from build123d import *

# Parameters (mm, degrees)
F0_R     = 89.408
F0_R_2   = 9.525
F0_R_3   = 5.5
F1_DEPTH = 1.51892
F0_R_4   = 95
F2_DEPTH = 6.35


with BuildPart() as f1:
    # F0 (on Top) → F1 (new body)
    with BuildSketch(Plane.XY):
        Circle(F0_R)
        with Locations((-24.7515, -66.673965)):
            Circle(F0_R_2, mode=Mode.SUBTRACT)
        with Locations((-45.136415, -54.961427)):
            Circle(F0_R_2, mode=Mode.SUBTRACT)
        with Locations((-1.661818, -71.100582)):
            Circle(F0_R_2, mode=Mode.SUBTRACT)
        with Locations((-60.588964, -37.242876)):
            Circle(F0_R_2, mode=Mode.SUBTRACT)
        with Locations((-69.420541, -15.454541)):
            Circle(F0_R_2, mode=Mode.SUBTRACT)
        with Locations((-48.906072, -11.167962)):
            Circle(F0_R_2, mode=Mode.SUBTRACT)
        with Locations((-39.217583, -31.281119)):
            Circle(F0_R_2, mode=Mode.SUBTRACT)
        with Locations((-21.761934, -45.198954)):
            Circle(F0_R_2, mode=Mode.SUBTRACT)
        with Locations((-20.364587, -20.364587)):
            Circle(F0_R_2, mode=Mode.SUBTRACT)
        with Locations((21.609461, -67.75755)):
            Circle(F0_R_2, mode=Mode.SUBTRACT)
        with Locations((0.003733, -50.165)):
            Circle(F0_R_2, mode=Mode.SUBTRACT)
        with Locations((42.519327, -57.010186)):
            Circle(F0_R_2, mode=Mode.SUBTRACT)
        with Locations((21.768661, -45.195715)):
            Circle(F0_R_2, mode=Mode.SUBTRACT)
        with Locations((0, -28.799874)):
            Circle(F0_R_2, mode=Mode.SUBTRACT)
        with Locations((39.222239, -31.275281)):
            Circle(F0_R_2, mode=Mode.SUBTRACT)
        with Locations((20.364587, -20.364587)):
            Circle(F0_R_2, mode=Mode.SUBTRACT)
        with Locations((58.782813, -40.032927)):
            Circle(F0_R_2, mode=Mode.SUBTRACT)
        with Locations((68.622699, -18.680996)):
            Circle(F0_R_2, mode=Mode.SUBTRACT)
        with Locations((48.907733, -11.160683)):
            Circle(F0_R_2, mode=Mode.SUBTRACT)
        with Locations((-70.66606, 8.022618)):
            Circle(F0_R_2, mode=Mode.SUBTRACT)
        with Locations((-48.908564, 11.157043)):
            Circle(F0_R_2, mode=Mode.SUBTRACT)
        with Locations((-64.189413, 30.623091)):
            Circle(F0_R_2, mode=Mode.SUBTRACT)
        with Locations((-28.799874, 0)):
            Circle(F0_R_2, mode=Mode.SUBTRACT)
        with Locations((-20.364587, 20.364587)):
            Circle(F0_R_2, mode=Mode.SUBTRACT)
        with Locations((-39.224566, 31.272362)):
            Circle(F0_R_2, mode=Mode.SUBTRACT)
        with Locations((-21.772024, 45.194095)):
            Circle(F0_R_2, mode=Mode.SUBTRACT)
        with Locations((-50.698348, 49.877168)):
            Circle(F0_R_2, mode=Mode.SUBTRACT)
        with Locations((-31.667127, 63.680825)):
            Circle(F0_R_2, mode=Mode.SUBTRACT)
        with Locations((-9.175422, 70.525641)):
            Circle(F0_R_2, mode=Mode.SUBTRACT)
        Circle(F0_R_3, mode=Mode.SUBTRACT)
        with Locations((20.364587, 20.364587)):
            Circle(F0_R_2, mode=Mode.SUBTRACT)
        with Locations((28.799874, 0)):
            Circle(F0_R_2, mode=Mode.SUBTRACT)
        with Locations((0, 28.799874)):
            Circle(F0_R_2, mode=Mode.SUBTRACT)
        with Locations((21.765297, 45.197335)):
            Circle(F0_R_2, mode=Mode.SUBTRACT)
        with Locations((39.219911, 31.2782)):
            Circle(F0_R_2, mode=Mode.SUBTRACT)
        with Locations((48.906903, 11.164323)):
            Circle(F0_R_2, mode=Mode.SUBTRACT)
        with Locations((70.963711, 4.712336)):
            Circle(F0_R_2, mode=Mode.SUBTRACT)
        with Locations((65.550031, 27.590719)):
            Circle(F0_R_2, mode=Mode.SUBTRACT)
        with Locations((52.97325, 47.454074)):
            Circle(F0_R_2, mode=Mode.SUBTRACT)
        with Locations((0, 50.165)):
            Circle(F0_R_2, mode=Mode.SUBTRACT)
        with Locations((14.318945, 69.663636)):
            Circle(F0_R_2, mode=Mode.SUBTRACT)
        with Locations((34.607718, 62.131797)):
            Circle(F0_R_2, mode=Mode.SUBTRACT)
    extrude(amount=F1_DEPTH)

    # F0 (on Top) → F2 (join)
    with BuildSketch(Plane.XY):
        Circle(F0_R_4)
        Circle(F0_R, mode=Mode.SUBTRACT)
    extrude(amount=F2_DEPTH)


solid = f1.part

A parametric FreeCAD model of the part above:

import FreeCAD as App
import Part
import Sketcher
from FreeCAD import Vector
Q = App.Units.Quantity

doc = App.newDocument("Part")
body = doc.addObject("PartDesign::Body", "Body")

# Sketch on XY plane
sketch1 = body.newObject("Sketcher::SketchObject", "Sketch")
sketch1.AttachmentSupport = (doc.getObject("XY_Plane"), [""])
sketch1.MapMode = "FlatFace"
sketch1.addGeometry(Part.Circle(Vector(0, 0, 0), Vector(0, 0, 1), 89), False)
sketch1.addGeometry(Part.Circle(Vector(-45, -55, 0), Vector(0, 0, 1), 10), False)
sketch1.addGeometry(Part.Circle(Vector(-25, -67, 0), Vector(0, 0, 1), 10), False)
sketch1.addGeometry(Part.Circle(Vector(-2, -71, 0), Vector(0, 0, 1), 10), False)
sketch1.addGeometry(Part.Circle(Vector(-22, -45, 0), Vector(0, 0, 1), 10), False)
sketch1.addGeometry(Part.Circle(Vector(0, -50, 0), Vector(0, 0, 1), 10), False)
sketch1.addGeometry(Part.Circle(Vector(-61, -37, 0), Vector(0, 0, 1), 10), False)
sketch1.addGeometry(Part.Circle(Vector(-69, -15, 0), Vector(0, 0, 1), 10), False)
sketch1.addGeometry(Part.Circle(Vector(-49, -11, 0), Vector(0, 0, 1), 10), False)
sketch1.addGeometry(Part.Circle(Vector(-39, -31, 0), Vector(0, 0, 1), 10), False)
sketch1.addGeometry(Part.Circle(Vector(0, -29, 0), Vector(0, 0, 1), 10), False)
sketch1.addGeometry(Part.Circle(Vector(-20, -20, 0), Vector(0, 0, 1), 10), False)
sketch1.addGeometry(Part.Circle(Vector(22, -68, 0), Vector(0, 0, 1), 10), False)
sketch1.addGeometry(Part.Circle(Vector(22, -45, 0), Vector(0, 0, 1), 10), False)
sketch1.addGeometry(Part.Circle(Vector(43, -57, 0), Vector(0, 0, 1), 10), False)
sketch1.addGeometry(Part.Circle(Vector(39, -31, 0), Vector(0, 0, 1), 10), False)
sketch1.addGeometry(Part.Circle(Vector(20, -20, 0), Vector(0, 0, 1), 10), False)
sketch1.addGeometry(Part.Circle(Vector(59, -40, 0), Vector(0, 0, 1), 10), False)
sketch1.addGeometry(Part.Circle(Vector(49, -11, 0), Vector(0, 0, 1), 10), False)
sketch1.addGeometry(Part.Circle(Vector(69, -19, 0), Vector(0, 0, 1), 10), False)
sketch1.addGeometry(Part.Circle(Vector(-71, 8, 0), Vector(0, 0, 1), 10), False)
sketch1.addGeometry(Part.Circle(Vector(-49, 11, 0), Vector(0, 0, 1), 10), False)
sketch1.addGeometry(Part.Circle(Vector(-64, 31, 0), Vector(0, 0, 1), 10), False)
sketch1.addGeometry(Part.Circle(Vector(-29, 0, 0), Vector(0, 0, 1), 10), False)
sketch1.addGeometry(Part.Circle(Vector(0, 0, 0), Vector(0, 0, 1), 6), False)
sketch1.addGeometry(Part.Circle(Vector(-20, 20, 0), Vector(0, 0, 1), 10), False)
sketch1.addGeometry(Part.Circle(Vector(-39, 31, 0), Vector(0, 0, 1), 10), False)
sketch1.addGeometry(Part.Circle(Vector(0, 29, 0), Vector(0, 0, 1), 10), False)
sketch1.addGeometry(Part.Circle(Vector(-51, 50, 0), Vector(0, 0, 1), 10), False)
sketch1.addGeometry(Part.Circle(Vector(-22, 45, 0), Vector(0, 0, 1), 10), False)
sketch1.addGeometry(Part.Circle(Vector(0, 50, 0), Vector(0, 0, 1), 10), False)
sketch1.addGeometry(Part.Circle(Vector(-32, 64, 0), Vector(0, 0, 1), 10), False)
sketch1.addGeometry(Part.Circle(Vector(-9, 71, 0), Vector(0, 0, 1), 10), False)
sketch1.addGeometry(Part.Circle(Vector(29, 0, 0), Vector(0, 0, 1), 10), False)
sketch1.addGeometry(Part.Circle(Vector(20, 20, 0), Vector(0, 0, 1), 10), False)
sketch1.addGeometry(Part.Circle(Vector(39, 31, 0), Vector(0, 0, 1), 10), False)
sketch1.addGeometry(Part.Circle(Vector(49, 11, 0), Vector(0, 0, 1), 10), False)
sketch1.addGeometry(Part.Circle(Vector(71, 5, 0), Vector(0, 0, 1), 10), False)
sketch1.addGeometry(Part.Circle(Vector(66, 28, 0), Vector(0, 0, 1), 10), False)
sketch1.addGeometry(Part.Circle(Vector(22, 45, 0), Vector(0, 0, 1), 10), False)
sketch1.addGeometry(Part.Circle(Vector(14, 70, 0), Vector(0, 0, 1), 10), False)
sketch1.addGeometry(Part.Circle(Vector(35, 62, 0), Vector(0, 0, 1), 10), False)
sketch1.addGeometry(Part.Circle(Vector(53, 47, 0), Vector(0, 0, 1), 10), False)
sketch1.addConstraint(Sketcher.Constraint("Coincident", 0, 3, -1, 1))
sketch1.addConstraint(Sketcher.Constraint("Coincident", 24, 3, -1, 1))
sketch1.addConstraint(Sketcher.Constraint("Equal", 1, 2))
sketch1.addConstraint(Sketcher.Constraint("Equal", 2, 3))
sketch1.addConstraint(Sketcher.Constraint("Equal", 3, 4))
sketch1.addConstraint(Sketcher.Constraint("Equal", 4, 5))
sketch1.addConstraint(Sketcher.Constraint("Equal", 5, 6))
sketch1.addConstraint(Sketcher.Constraint("Equal", 6, 7))
sketch1.addConstraint(Sketcher.Constraint("Equal", 7, 8))
sketch1.addConstraint(Sketcher.Constraint("Equal", 8, 9))
sketch1.addConstraint(Sketcher.Constraint("Equal", 9, 10))
sketch1.addConstraint(Sketcher.Constraint("Equal", 10, 11))
sketch1.addConstraint(Sketcher.Constraint("Equal", 11, 12))
sketch1.addConstraint(Sketcher.Constraint("Equal", 12, 13))
sketch1.addConstraint(Sketcher.Constraint("Equal", 13, 14))
sketch1.addConstraint(Sketcher.Constraint("Equal", 14, 15))
sketch1.addConstraint(Sketcher.Constraint("Equal", 15, 16))
sketch1.addConstraint(Sketcher.Constraint("Equal", 16, 17))
sketch1.addConstraint(Sketcher.Constraint("Equal", 17, 18))
sketch1.addConstraint(Sketcher.Constraint("Equal", 18, 19))
sketch1.addConstraint(Sketcher.Constraint("Equal", 19, 20))
sketch1.addConstraint(Sketcher.Constraint("Equal", 20, 21))
sketch1.addConstraint(Sketcher.Constraint("Equal", 21, 22))
sketch1.addConstraint(Sketcher.Constraint("Equal", 22, 23))
sketch1.addConstraint(Sketcher.Constraint("Equal", 23, 25))
sketch1.addConstraint(Sketcher.Constraint("Equal", 25, 26))
sketch1.addConstraint(Sketcher.Constraint("Equal", 26, 27))
sketch1.addConstraint(Sketcher.Constraint("Equal", 27, 28))
sketch1.addConstraint(Sketcher.Constraint("Equal", 28, 29))
sketch1.addConstraint(Sketcher.Constraint("Equal", 29, 30))
sketch1.addConstraint(Sketcher.Constraint("Equal", 30, 31))
sketch1.addConstraint(Sketcher.Constraint("Equal", 31, 32))
sketch1.addConstraint(Sketcher.Constraint("Equal", 32, 33))
sketch1.addConstraint(Sketcher.Constraint("Equal", 33, 34))
sketch1.addConstraint(Sketcher.Constraint("Equal", 34, 35))
sketch1.addConstraint(Sketcher.Constraint("Equal", 35, 36))
sketch1.addConstraint(Sketcher.Constraint("Equal", 36, 37))
sketch1.addConstraint(Sketcher.Constraint("Equal", 37, 38))
sketch1.addConstraint(Sketcher.Constraint("Equal", 38, 39))
sketch1.addConstraint(Sketcher.Constraint("Equal", 39, 40))
sketch1.addConstraint(Sketcher.Constraint("Equal", 40, 41))
sketch1.addConstraint(Sketcher.Constraint("Equal", 41, 42))
sketch1.addConstraint(Sketcher.Constraint("Symmetric", 16, 3, 25, 3, -1, 1))
sketch1.addConstraint(Sketcher.Constraint("Symmetric", 10, 3, 27, 3, -1, 1))
sketch1.addConstraint(Sketcher.Constraint("Symmetric", 23, 3, 33, 3, -1, 1))
sketch1.addConstraint(Sketcher.Constraint("Symmetric", 11, 3, 34, 3, -1, 1))
sketch1.addConstraint(Sketcher.Constraint("Symmetric", 11, 3, 16, 3, -2))
sketch1.addConstraint(Sketcher.Constraint("PointOnObject", 10, 3, -2))
sketch1.addConstraint(Sketcher.Constraint("PointOnObject", 23, 3, -1))
sketch1.addConstraint(Sketcher.Constraint("PointOnObject", 30, 3, -2))
sketch1.addConstraint(Sketcher.Constraint("Diameter", 0, Q("7.04 in")))
sketch1.addConstraint(Sketcher.Constraint("Diameter", 1, Q("0.75 in")))
sketch1.addConstraint(Sketcher.Constraint("Diameter", 24, Q("11 mm")))
sketch1.addConstraint(Sketcher.Constraint("DistanceY", 5, 3, -1, 1, Q("1.975 in")))
sketch1.addConstraint(Sketcher.Constraint("DistanceY", -1, 1, 30, 3, Q("1.975 in")))
sketch1.addConstraint(Sketcher.Constraint("DistanceY", -1, 1, 32, 3, Q("2.7766 in")))
sketch1.addConstraint(Sketcher.Constraint("DistanceY", 3, 3, 1, 3, Q("0.6353998 in")))
sketch1.addConstraint(Sketcher.Constraint("DistanceX", 7, 3, 6, 3, Q("0.3476999 in")))
sketch1.addConstraint(Sketcher.Constraint("DistanceY", 7, 3, 21, 3, Q("1.0477002 in")))
sketch1.addConstraint(Sketcher.Constraint("DistanceX", 31, 3, 32, 3, Q("0.8855002 in")))
sketch1.addConstraint(Sketcher.Constraint("DistanceY", 37, 3, 35, 3, Q("1.0459002 in")))
sketch1.addConstraint(Sketcher.Constraint("DistanceX", 2, 3, -1, 1, Q("24.7515 mm")))
sketch1.addConstraint(Sketcher.Constraint("DistanceX", -1, 1, 19, 3, Q("68.622699 mm")))
sketch1.addConstraint(Sketcher.Constraint("DistanceY", -1, 1, 35, 3, Q("31.2782 mm")))
sketch1.addConstraint(Sketcher.Constraint("DistanceX", 12, 3, 13, 3, Q("0.1592 mm")))
sketch1.addConstraint(Sketcher.Constraint("DistanceY", 15, 3, 18, 3, Q("20.114598 mm")))
sketch1.addConstraint(Sketcher.Constraint("DistanceX", 8, 3, 23, 3, Q("20.106198 mm")))
sketch1.addConstraint(Sketcher.Constraint("DistanceX", 29, 3, 32, 3, Q("12.596602 mm")))
sketch1.addConstraint(Sketcher.Constraint("DistanceX", 35, 3, 37, 3, Q("31.7438 mm")))
sketch1.addConstraint(Sketcher.Constraint("DistanceX", 18, 3, 38, 3, Q("16.642298 mm")))
sketch1.addConstraint(Sketcher.Constraint("DistanceY", 39, 3, 40, 3, Q("24.466301 mm")))
sketch1.addConstraint(Sketcher.Constraint("DistanceX", 7, 3, -1, 1, Q("69.420541 mm")))
sketch1.addConstraint(Sketcher.Constraint("DistanceY", 7, 3, -1, 1, Q("15.454541 mm")))
sketch1.addConstraint(Sketcher.Constraint("DistanceY", 8, 3, -1, 1, Q("11.167962 mm")))
sketch1.addConstraint(Sketcher.Constraint("DistanceY", 9, 3, -1, 1, Q("31.281119 mm")))
sketch1.addConstraint(Sketcher.Constraint("DistanceX", -1, 1, 12, 3, Q("21.609461 mm")))
sketch1.addConstraint(Sketcher.Constraint("DistanceY", 12, 3, -1, 1, Q("67.75755 mm")))
sketch1.addConstraint(Sketcher.Constraint("DistanceX", -1, 1, 15, 3, Q("39.222239 mm")))
sketch1.addConstraint(Sketcher.Constraint("DistanceY", 15, 3, -1, 1, Q("31.275281 mm")))
sketch1.addConstraint(Sketcher.Constraint("DistanceX", 20, 3, -1, 1, Q("70.66606 mm")))
sketch1.addConstraint(Sketcher.Constraint("DistanceY", -1, 1, 22, 3, Q("30.623091 mm")))
sketch1.addConstraint(Sketcher.Constraint("DistanceX", 28, 3, -1, 1, Q("50.698348 mm")))
sketch1.addConstraint(Sketcher.Constraint("DistanceX", 32, 3, -1, 1, Q("9.175422 mm")))
sketch1.addConstraint(Sketcher.Constraint("DistanceX", -1, 1, 35, 3, Q("39.219911 mm")))
sketch1.addConstraint(Sketcher.Constraint("DistanceX", -1, 1, 38, 3, Q("65.550031 mm")))
sketch1.addConstraint(Sketcher.Constraint("DistanceY", -1, 1, 38, 3, Q("27.590719 mm")))
sketch1.addConstraint(Sketcher.Constraint("DistanceX", -1, 1, 42, 3, Q("52.97325 mm")))
sketch1.addConstraint(Sketcher.Constraint("DistanceX", 2, 3, 3, 3, Q("23.089682 mm")))
sketch1.addConstraint(Sketcher.Constraint("DistanceY", 2, 3, 4, 3, Q("21.475011 mm")))
sketch1.addConstraint(Sketcher.Constraint("DistanceX", 1, 3, 4, 3, Q("23.374481 mm")))
sketch1.addConstraint(Sketcher.Constraint("DistanceY", 3, 3, 4, 3, Q("25.901628 mm")))
sketch1.addConstraint(Sketcher.Constraint("DistanceX", 3, 3, 5, 3, Q("1.665551 mm")))
sketch1.addConstraint(Sketcher.Constraint("DistanceX", 6, 3, 1, 3, Q("15.452549 mm")))
sketch1.addConstraint(Sketcher.Constraint("DistanceY", 1, 3, 6, 3, Q("17.718551 mm")))
sketch1.addConstraint(Sketcher.Constraint("DistanceX", 7, 3, 8, 3, Q("20.514469 mm")))
sketch1.addConstraint(Sketcher.Constraint("DistanceY", 4, 3, 8, 3, Q("34.030992 mm")))
sketch1.addConstraint(Sketcher.Constraint("DistanceX", 6, 3, 9, 3, Q("21.371381 mm")))
sketch1.addConstraint(Sketcher.Constraint("DistanceY", 4, 3, 10, 3, Q("16.39908 mm")))
sketch1.addConstraint(Sketcher.Constraint("DistanceY", 13, 3, 10, 3, Q("16.395841 mm")))
sketch1.addConstraint(Sketcher.Constraint("DistanceY", 14, 3, 13, 3, Q("11.814471 mm")))
sketch1.addConstraint(Sketcher.Constraint("DistanceY", 14, 3, 17, 3, Q("16.977259 mm")))
sketch1.addConstraint(Sketcher.Constraint("DistanceX", 13, 3, 17, 3, Q("37.014152 mm")))
sketch1.addConstraint(Sketcher.Constraint("DistanceY", 17, 3, 16, 3, Q("19.66834 mm")))
sketch1.addConstraint(Sketcher.Constraint("DistanceY", 17, 3, 19, 3, Q("21.351931 mm")))
sketch1.addConstraint(Sketcher.Constraint("DistanceX", 14, 3, 19, 3, Q("26.103372 mm")))
sketch1.addConstraint(Sketcher.Constraint("DistanceX", 16, 3, 19, 3, Q("48.258112 mm")))
sketch1.addConstraint(Sketcher.Constraint("DistanceY", 7, 3, 20, 3, Q("23.477159 mm")))
sketch1.addConstraint(Sketcher.Constraint("DistanceX", 21, 3, 8, 3, Q("0.002492 mm")))
sketch1.addConstraint(Sketcher.Constraint("DistanceX", 22, 3, 21, 3, Q("15.280849 mm")))
sketch1.addConstraint(Sketcher.Constraint("DistanceX", 26, 3, 25, 3, Q("18.859979 mm")))
sketch1.addConstraint(Sketcher.Constraint("DistanceY", 21, 3, 26, 3, Q("20.115319 mm")))
sketch1.addConstraint(Sketcher.Constraint("DistanceY", 25, 3, 28, 3, Q("29.512581 mm")))
sketch1.addConstraint(Sketcher.Constraint("DistanceY", 27, 3, 29, 3, Q("16.394221 mm")))
sketch1.addConstraint(Sketcher.Constraint("DistanceY", 29, 3, 31, 3, Q("18.48673 mm")))
sketch1.addConstraint(Sketcher.Constraint("DistanceX", 35, 3, 36, 3, Q("9.686992 mm")))
sketch1.addConstraint(Sketcher.Constraint("DistanceY", 19, 3, 36, 3, Q("29.845319 mm")))
sketch1.addConstraint(Sketcher.Constraint("DistanceX", 34, 3, 39, 3, Q("1.40071 mm")))
sketch1.addConstraint(Sketcher.Constraint("DistanceY", 34, 3, 39, 3, Q("24.832748 mm")))
sketch1.addConstraint(Sketcher.Constraint("DistanceX", 29, 3, 40, 3, Q("36.090969 mm")))
sketch1.addConstraint(Sketcher.Constraint("DistanceX", 39, 3, 41, 3, Q("12.842421 mm")))
sketch1.addConstraint(Sketcher.Constraint("DistanceY", 39, 3, 41, 3, Q("16.934462 mm")))
sketch1.addConstraint(Sketcher.Constraint("DistanceY", 39, 3, 42, 3, Q("2.256739 mm")))
pad1 = body.newObject("PartDesign::Pad", "Pad")
pad1.Profile = sketch1
pad1.Length = Q("0.0598 in")

# Sketch on XY plane
sketch2 = body.newObject("Sketcher::SketchObject", "Sketch001")
sketch2.AttachmentSupport = (doc.getObject("XY_Plane"), [""])
sketch2.MapMode = "FlatFace"
sketch2.addGeometry(Part.Circle(Vector(0, 0, 0), Vector(0, 0, 1), 95), False)
sketch2.addGeometry(Part.Circle(Vector(0, 0, 0), Vector(0, 0, 1), 89), False)
sketch2.addConstraint(Sketcher.Constraint("Coincident", 0, 3, -1, 1))
sketch2.addConstraint(Sketcher.Constraint("Coincident", 1, 3, -1, 1))
sketch2.addConstraint(Sketcher.Constraint("Diameter", 1, Q("7.04 in")))
sketch2.addConstraint(Sketcher.Constraint("Diameter", 0, Q("190 mm")))
pad2 = body.newObject("PartDesign::Pad", "Pad001")
pad2.Profile = sketch2
pad2.Length = Q("0.25 in")

doc.recompute()
